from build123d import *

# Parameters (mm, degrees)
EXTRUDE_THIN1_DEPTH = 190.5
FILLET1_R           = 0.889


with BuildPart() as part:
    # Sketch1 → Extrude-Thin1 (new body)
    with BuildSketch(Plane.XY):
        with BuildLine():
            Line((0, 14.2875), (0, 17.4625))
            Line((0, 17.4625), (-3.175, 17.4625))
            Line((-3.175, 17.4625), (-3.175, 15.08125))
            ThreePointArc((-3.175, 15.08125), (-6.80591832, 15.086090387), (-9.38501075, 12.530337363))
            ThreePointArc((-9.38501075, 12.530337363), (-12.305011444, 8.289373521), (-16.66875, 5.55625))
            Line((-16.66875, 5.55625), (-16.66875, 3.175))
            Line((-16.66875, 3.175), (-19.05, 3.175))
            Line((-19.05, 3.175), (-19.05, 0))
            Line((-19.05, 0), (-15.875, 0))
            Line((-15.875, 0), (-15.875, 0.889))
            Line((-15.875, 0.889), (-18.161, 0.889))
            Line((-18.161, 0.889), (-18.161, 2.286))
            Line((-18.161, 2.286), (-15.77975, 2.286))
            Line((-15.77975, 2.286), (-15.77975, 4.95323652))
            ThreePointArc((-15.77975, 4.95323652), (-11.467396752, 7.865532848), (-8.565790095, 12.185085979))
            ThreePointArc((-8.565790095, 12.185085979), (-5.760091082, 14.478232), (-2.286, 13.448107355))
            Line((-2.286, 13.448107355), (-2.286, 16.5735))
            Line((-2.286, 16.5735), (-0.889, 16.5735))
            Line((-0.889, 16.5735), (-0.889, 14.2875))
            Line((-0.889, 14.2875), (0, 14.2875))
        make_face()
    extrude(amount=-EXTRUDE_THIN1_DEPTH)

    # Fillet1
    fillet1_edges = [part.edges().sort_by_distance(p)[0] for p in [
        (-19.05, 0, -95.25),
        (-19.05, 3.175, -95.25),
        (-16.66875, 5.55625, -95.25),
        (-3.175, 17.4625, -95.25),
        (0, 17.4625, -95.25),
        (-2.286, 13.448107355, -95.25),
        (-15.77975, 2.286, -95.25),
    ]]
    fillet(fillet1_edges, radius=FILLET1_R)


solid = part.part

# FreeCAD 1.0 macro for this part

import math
import FreeCAD as App
import Part
import Sketcher

V = App.Vector
Q = App.Units.Quantity


def edges_at(feature, points):
    """Names of the edges that pass closest to the given points."""
    edges = feature.Shape.Edges
    near = lambda p: min(range(len(edges)), key=lambda i: edges[i].distToShape(Part.Vertex(*p))[0])
    return sorted({f"Edge{near(p) + 1}" for p in points})

doc = App.newDocument("Part")
body = doc.addObject("PartDesign::Body", "Body")

sketch1 = body.newObject("Sketcher::SketchObject", "Sketch")
sketch1.AttachmentSupport = (doc.getObject("XY_Plane"), [""])
sketch1.MapMode = "FlatFace"
sketch1.addGeometry([
    Part.LineSegment(V(0, 14.3, 0), V(0, 17.5, 0)),
    Part.LineSegment(V(0, 17.5, 0), V(-3.2, 17.5, 0)),
    Part.LineSegment(V(-3.2, 17.5, 0), V(-3.2, 15.1, 0)),
    Part.ArcOfCircle(Part.Circle(V(-5, 10.7, 0), V(0, 0, 1), 4.8), math.radians(68), math.radians(157)),
    Part.ArcOfCircle(Part.Circle(V(-21.1, 17.5, 0), V(0, 0, 1), 12.7), math.radians(-70), math.radians(-23)),
    Part.LineSegment(V(-16.7, 5.6, 0), V(-16.7, 3.2, 0)),
    Part.LineSegment(V(-16.7, 3.2, 0), V(-19.1, 3.2, 0)),
    Part.LineSegment(V(-19.1, 3.2, 0), V(-19.1, 0, 0)),
    Part.LineSegment(V(-19.1, 0, 0), V(-15.9, 0, 0)),
    Part.LineSegment(V(-15.9, 0, 0), V(-15.9, 0.9, 0)),
    Part.LineSegment(V(-15.9, 0.9, 0), V(-18.2, 0.9, 0)),
    Part.LineSegment(V(-18.2, 0.9, 0), V(-18.2, 2.3, 0)),
    Part.LineSegment(V(-18.2, 2.3, 0), V(-15.8, 2.3, 0)),
    Part.LineSegment(V(-15.8, 2.3, 0), V(-15.8, 5, 0)),
    Part.ArcOfCircle(Part.Circle(V(-21.1, 17.5, 0), V(0, 0, 1), 13.6), math.radians(-67), math.radians(-23)),
    Part.ArcOfCircle(Part.Circle(V(-5, 10.7, 0), V(0, 0, 1), 3.9), math.radians(46), math.radians(157)),
    Part.LineSegment(V(-2.3, 13.4, 0), V(-2.3, 16.6, 0)),
    Part.LineSegment(V(-2.3, 16.6, 0), V(-0.9, 16.6, 0)),
    Part.LineSegment(V(-0.9, 16.6, 0), V(-0.9, 14.3, 0)),
    Part.LineSegment(V(-0.9, 14.3, 0), V(0, 14.3, 0)),
], False)
sketch1.addConstraint([
    Sketcher.Constraint("Coincident", 0, 2, 1, 1),
    Sketcher.Constraint("Coincident", 1, 2, 2, 1),
    Sketcher.Constraint("Coincident", 2, 2, 3, 1),
    Sketcher.Constraint("Tangent", 3, 2, 4, 2),
    Sketcher.Constraint("Coincident", 4, 1, 5, 1),
    Sketcher.Constraint("Coincident", 5, 2, 6, 1),
    Sketcher.Constraint("Coincident", 6, 2, 7, 1),
    Sketcher.Constraint("Coincident", 7, 2, 8, 1),
    Sketcher.Constraint("Coincident", 8, 2, 9, 1),
    Sketcher.Constraint("Coincident", 9, 2, 10, 1),
    Sketcher.Constraint("Coincident", 10, 2, 11, 1),
    Sketcher.Constraint("Coincident", 11, 2, 12, 1),
    Sketcher.Constraint("Coincident", 12, 2, 13, 1),
    Sketcher.Constraint("Coincident", 13, 2, 14, 1),
    Sketcher.Constraint("Tangent", 14, 2, 15, 2),
    Sketcher.Constraint("Coincident", 15, 1, 16, 1),
    Sketcher.Constraint("Coincident", 16, 2, 17, 1),
    Sketcher.Constraint("Coincident", 17, 2, 18, 1),
    Sketcher.Constraint("Coincident", 18, 2, 19, 1),
    Sketcher.Constraint("Coincident", 19, 2, 0, 1),
    Sketcher.Constraint("Vertical", 0),
    Sketcher.Constraint("Horizontal", 1),
    Sketcher.Constraint("Vertical", 2),
    Sketcher.Constraint("Vertical", 5),
    Sketcher.Constraint("Horizontal", 6),
    Sketcher.Constraint("Vertical", 7),
    Sketcher.Constraint("Horizontal", 8),
    Sketcher.Constraint("Vertical", 9),
    Sketcher.Constraint("Horizontal", 10),
    Sketcher.Constraint("Vertical", 11),
    Sketcher.Constraint("Horizontal", 12),
    Sketcher.Constraint("Vertical", 13),
    Sketcher.Constraint("Vertical", 16),
    Sketcher.Constraint("Horizontal", 17),
    Sketcher.Constraint("Vertical", 18),
    Sketcher.Constraint("Horizontal", 19),
    Sketcher.Constraint("Coincident", 14, 3, 4, 3),
    Sketcher.Constraint("Coincident", 15, 3, 3, 3),
    Sketcher.Constraint("PointOnObject", 0, 2, -2),
    Sketcher.Constraint("PointOnObject", 7, 2, -1),
    Sketcher.Constraint("Horizontal", 14, 3, 0, 2),
    Sketcher.Constraint("Equal", 1, 8),
    Sketcher.Constraint("Equal", 6, 12),
    Sketcher.Constraint("Equal", 8, 0),
    Sketcher.Constraint("Equal", 12, 2),
    Sketcher.Constraint("Equal", 2, 5),
    Sketcher.Constraint("Equal", 0, 7),
    Sketcher.Constraint("Equal", 19, 9),
    Sketcher.Constraint("Equal", 17, 11),
    Sketcher.Constraint("Equal", 10, 18),
    Sketcher.Constraint("Radius", 4, Q("0.5 in")),
    Sketcher.Constraint("Radius", 3, Q("0.1875 in")),
    Sketcher.Constraint("Radius", 14, Q("0.535 in")),
    Sketcher.Constraint("DistanceX", 10, 2, 10, 1, Q("0.09 in")),
    Sketcher.Constraint("DistanceX", 1, 2, 1, 1, Q("0.125 in")),
    Sketcher.Constraint("DistanceX", 6, 2, 6, 1, Q("0.09375 in")),
    Sketcher.Constraint("DistanceX", 17, 1, 17, 2, Q("0.055 in")),
    Sketcher.Constraint("DistanceX", 19, 1, 19, 2, Q("0.035 in")),
    Sketcher.Constraint("DistanceX", 6, 2, -1, 1, Q("0.75 in")),
    Sketcher.Constraint("DistanceY", -1, 1, 4, 3, Q("0.6875 in")),
])
pad1 = body.newObject("PartDesign::Pad", "Pad")
pad1.Profile = sketch1
pad1.Length = Q("7.5 in")
pad1.Reversed = True
doc.recompute()

fillet = body.newObject("PartDesign::Fillet", "Fillet")
fillet.Base = (pad1, edges_at(pad1, [
    (-19.05, 0, -95.25),
    (-19.05, 3.175, -95.25),
    (-16.669, 5.556, -95.25),
    (-3.175, 17.462, -95.25),
    (0, 17.462, -95.25),
    (-2.286, 13.448, -95.25),
    (-15.78, 2.286, -95.25),
]))
fillet.Radius = Q("0.035 in")

doc.recompute()
